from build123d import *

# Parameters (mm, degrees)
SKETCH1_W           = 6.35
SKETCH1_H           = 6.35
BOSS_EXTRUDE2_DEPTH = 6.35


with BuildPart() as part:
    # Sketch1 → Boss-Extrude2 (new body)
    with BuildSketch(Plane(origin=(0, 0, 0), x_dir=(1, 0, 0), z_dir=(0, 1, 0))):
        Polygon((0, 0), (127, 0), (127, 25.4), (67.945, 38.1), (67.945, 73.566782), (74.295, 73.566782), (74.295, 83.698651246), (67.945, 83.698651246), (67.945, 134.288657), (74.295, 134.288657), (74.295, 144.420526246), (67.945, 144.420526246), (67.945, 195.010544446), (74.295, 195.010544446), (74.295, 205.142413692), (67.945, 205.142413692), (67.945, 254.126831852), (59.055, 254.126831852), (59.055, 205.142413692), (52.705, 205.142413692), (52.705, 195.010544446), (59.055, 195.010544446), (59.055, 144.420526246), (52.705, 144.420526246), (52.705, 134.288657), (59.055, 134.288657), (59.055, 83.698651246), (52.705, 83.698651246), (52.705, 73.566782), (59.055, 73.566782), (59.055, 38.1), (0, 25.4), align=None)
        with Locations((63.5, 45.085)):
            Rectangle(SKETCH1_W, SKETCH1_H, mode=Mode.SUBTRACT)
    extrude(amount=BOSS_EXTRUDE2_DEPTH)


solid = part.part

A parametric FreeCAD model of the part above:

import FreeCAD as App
import Part
import Sketcher
Q = App.Units.Quantity

doc = App.newDocument("Part")
body = doc.addObject("PartDesign::Body", "Body")

sketch1 = body.newObject("Sketcher::SketchObject", "Sketch")
sketch1.AttachmentSupport = (doc.getObject("XZ_Plane"), [""])
sketch1.MapMode = "FlatFace"
sketch1.addGeometry([
    Part.LineSegment(App.Vector(0, 0, 0), App.Vector(127, 0, 0)),
    Part.LineSegment(App.Vector(127, 0, 0), App.Vector(127, -25.4, 0)),
    Part.LineSegment(App.Vector(127, -25.4, 0), App.Vector(67.945, -38.1, 0)),
    Part.LineSegment(App.Vector(67.945, -38.1, 0), App.Vector(67.945, -73.566782, 0)),
    Part.LineSegment(App.Vector(67.945, -73.566782, 0), App.Vector(74.295, -73.566782, 0)),
    Part.LineSegment(App.Vector(74.295, -73.566782, 0), App.Vector(74.295, -83.698651, 0)),
    Part.LineSegment(App.Vector(74.295, -83.698651, 0), App.Vector(67.945, -83.698651, 0)),
    Part.LineSegment(App.Vector(67.945, -83.698651, 0), App.Vector(67.945, -134.288657, 0)),
    Part.LineSegment(App.Vector(67.945, -134.288657, 0), App.Vector(74.295, -134.288657, 0)),
    Part.LineSegment(App.Vector(74.295, -134.288657, 0), App.Vector(74.295, -144.420526, 0)),
    Part.LineSegment(App.Vector(74.295, -144.420526, 0), App.Vector(67.945, -144.420526, 0)),
    Part.LineSegment(App.Vector(67.945, -144.420526, 0), App.Vector(67.945, -195.010544, 0)),
    Part.LineSegment(App.Vector(67.945, -195.010544, 0), App.Vector(74.295, -195.010544, 0)),
    Part.LineSegment(App.Vector(74.295, -195.010544, 0), App.Vector(74.295, -205.142414, 0)),
    Part.LineSegment(App.Vector(74.295, -205.142414, 0), App.Vector(67.945, -205.142414, 0)),
    Part.LineSegment(App.Vector(67.945, -205.142414, 0), App.Vector(67.945, -254.126832, 0)),
    Part.LineSegment(App.Vector(67.945, -254.126832, 0), App.Vector(59.055, -254.126832, 0)),
    Part.LineSegment(App.Vector(59.055, -254.126832, 0), App.Vector(59.055, -205.142414, 0)),
    Part.LineSegment(App.Vector(59.055, -205.142414, 0), App.Vector(52.705, -205.142414, 0)),
    Part.LineSegment(App.Vector(52.705, -205.142414, 0), App.Vector(52.705, -195.010544, 0)),
    Part.LineSegment(App.Vector(52.705, -195.010544, 0), App.Vector(59.055, -195.010544, 0)),
    Part.LineSegment(App.Vector(59.055, -195.010544, 0), App.Vector(59.055, -144.420526, 0)),
    Part.LineSegment(App.Vector(59.055, -144.420526, 0), App.Vector(52.705, -144.420526, 0)),
    Part.LineSegment(App.Vector(52.705, -144.420526, 0), App.Vector(52.705, -134.288657, 0)),
    Part.LineSegment(App.Vector(52.705, -134.288657, 0), App.Vector(59.055, -134.288657, 0)),
    Part.LineSegment(App.Vector(59.055, -134.288657, 0), App.Vector(59.055, -83.698651, 0)),
    Part.LineSegment(App.Vector(59.055, -83.698651, 0), App.Vector(52.705, -83.698651, 0)),
    Part.LineSegment(App.Vector(52.705, -83.698651, 0), App.Vector(52.705, -73.566782, 0)),
    Part.LineSegment(App.Vector(52.705, -73.566782, 0), App.Vector(59.055, -73.566782, 0)),
    Part.LineSegment(App.Vector(59.055, -73.566782, 0), App.Vector(59.055, -38.1, 0)),
    Part.LineSegment(App.Vector(59.055, -38.1, 0), App.Vector(0, -25.4, 0)),
    Part.LineSegment(App.Vector(0, -25.4, 0), App.Vector(0, 0, 0)),
    Part.LineSegment(App.Vector(66.675, -41.91, 0), App.Vector(60.325, -41.91, 0)),
    Part.LineSegment(App.Vector(60.325, -41.91, 0), App.Vector(60.325, -48.26, 0)),
    Part.LineSegment(App.Vector(60.325, -48.26, 0), App.Vector(66.675, -48.26, 0)),
    Part.LineSegment(App.Vector(66.675, -48.26, 0), App.Vector(66.675, -41.91, 0)),
], False)
sketch1.addConstraint([
    Sketcher.Constraint("Coincident", 0, 2, 1, 1),
    Sketcher.Constraint("Coincident", 1, 2, 2, 1),
    Sketcher.Constraint("Coincident", 2, 2, 3, 1),
    Sketcher.Constraint("Coincident", 3, 2, 4, 1),
    Sketcher.Constraint("Coincident", 4, 2, 5, 1),
    Sketcher.Constraint("Coincident", 5, 2, 6, 1),
    Sketcher.Constraint("Coincident", 6, 2, 7, 1),
    Sketcher.Constraint("Coincident", 7, 2, 8, 1),
    Sketcher.Constraint("Coincident", 8, 2, 9, 1),
    Sketcher.Constraint("Coincident", 9, 2, 10, 1),
    Sketcher.Constraint("Coincident", 10, 2, 11, 1),
    Sketcher.Constraint("Coincident", 11, 2, 12, 1),
    Sketcher.Constraint("Coincident", 12, 2, 13, 1),
    Sketcher.Constraint("Coincident", 13, 2, 14, 1),
    Sketcher.Constraint("Coincident", 14, 2, 15, 1),
    Sketcher.Constraint("Coincident", 15, 2, 16, 1),
    Sketcher.Constraint("Coincident", 16, 2, 17, 1),
    Sketcher.Constraint("Coincident", 17, 2, 18, 1),
    Sketcher.Constraint("Coincident", 18, 2, 19, 1),
    Sketcher.Constraint("Coincident", 19, 2, 20, 1),
    Sketcher.Constraint("Coincident", 20, 2, 21, 1),
    Sketcher.Constraint("Coincident", 21, 2, 22, 1),
    Sketcher.Constraint("Coincident", 22, 2, 23, 1),
    Sketcher.Constraint("Coincident", 23, 2, 24, 1),
    Sketcher.Constraint("Coincident", 24, 2, 25, 1),
    Sketcher.Constraint("Coincident", 25, 2, 26, 1),
    Sketcher.Constraint("Coincident", 26, 2, 27, 1),
    Sketcher.Constraint("Coincident", 27, 2, 28, 1),
    Sketcher.Constraint("Coincident", 28, 2, 29, 1),
    Sketcher.Constraint("Coincident", 29, 2, 30, 1),
    Sketcher.Constraint("Coincident", 30, 2, 31, 1),
    Sketcher.Constraint("Coincident", 31, 2, 0, 1),
    Sketcher.Constraint("Coincident", 32, 2, 33, 1),
    Sketcher.Constraint("Coincident", 33, 2, 34, 1),
    Sketcher.Constraint("Coincident", 34, 2, 35, 1),
    Sketcher.Constraint("Coincident", 35, 2, 32, 1),
    Sketcher.Constraint("Horizontal", 0),
    Sketcher.Constraint("Vertical", 1),
    Sketcher.Constraint("Vertical", 3),
    Sketcher.Constraint("Horizontal", 4),
    Sketcher.Constraint("Vertical", 5),
    Sketcher.Constraint("Horizontal", 6),
    Sketcher.Constraint("Vertical", 7),
    Sketcher.Constraint("Horizontal", 8),
    Sketcher.Constraint("Vertical", 9),
    Sketcher.Constraint("Horizontal", 10),
    Sketcher.Constraint("Vertical", 11),
    Sketcher.Constraint("Horizontal", 12),
    Sketcher.Constraint("Vertical", 13),
    Sketcher.Constraint("Horizontal", 14),
    Sketcher.Constraint("Vertical", 15),
    Sketcher.Constraint("Horizontal", 16),
    Sketcher.Constraint("Vertical", 17),
    Sketcher.Constraint("Horizontal", 18),
    Sketcher.Constraint("Vertical", 19),
    Sketcher.Constraint("Horizontal", 20),
    Sketcher.Constraint("Vertical", 21),
    Sketcher.Constraint("Horizontal", 22),
    Sketcher.Constraint("Vertical", 23),
    Sketcher.Constraint("Horizontal", 24),
    Sketcher.Constraint("Vertical", 25),
    Sketcher.Constraint("Horizontal", 26),
    Sketcher.Constraint("Vertical", 27),
    Sketcher.Constraint("Horizontal", 28),
    Sketcher.Constraint("Vertical", 29),
    Sketcher.Constraint("Vertical", 31),
    Sketcher.Constraint("Horizontal", 32),
    Sketcher.Constraint("Vertical", 33),
    Sketcher.Constraint("Horizontal", 34),
    Sketcher.Constraint("Vertical", 35),
    Sketcher.Constraint("Coincident", 31, 2, -1, 1),
    Sketcher.Constraint("Horizontal", 14, 2, 17, 2),
    Sketcher.Constraint("Horizontal", 12, 2, 19, 2),
    Sketcher.Constraint("Horizontal", 10, 2, 21, 2),
    Sketcher.Constraint("Horizontal", 8, 2, 23, 2),
    Sketcher.Constraint("Horizontal", 6, 2, 25, 2),
    Sketcher.Constraint("Horizontal", 4, 2, 27, 2),
    Sketcher.Constraint("Horizontal", 2, 2, 29, 2),
    Sketcher.Constraint("Horizontal", 1, 2, 30, 2),
    Sketcher.Constraint("Vertical", 3, 2, 6, 2),
    Sketcher.Constraint("Vertical", 5, 2, 8, 2),
    Sketcher.Constraint("Vertical", 7, 2, 10, 2),
    Sketcher.Constraint("Vertical", 9, 2, 12, 2),
    Sketcher.Constraint("Vertical", 11, 2, 14, 2),
    Sketcher.Constraint("Vertical", 17, 2, 20, 2),
    Sketcher.Constraint("Vertical", 19, 2, 22, 2),
    Sketcher.Constraint("Vertical", 21, 2, 24, 2),
    Sketcher.Constraint("Vertical", 23, 2, 26, 2),
    Sketcher.Constraint("Vertical", 25, 2, 28, 2),
    Sketcher.Constraint("Equal", 14, 18),
    Sketcher.Constraint("Equal", 28, 32),
    Sketcher.Constraint("Equal", 5, 9),
    Sketcher.Constraint("Equal", 9, 13),
    Sketcher.Constraint("Equal", 34, 33),
    Sketcher.Constraint("Equal", 2, 30),
    Sketcher.Constraint("DistanceX", 0, 1, 0, 2, Q("5 in")),
    Sketcher.Constraint("DistanceY", 1, 2, 1, 1, Q("1 in")),
    Sketcher.Constraint("DistanceX", 4, 1, 4, 2, Q("0.25 in")),
    Sketcher.Constraint("DistanceX", 16, 2, 16, 1, Q("0.35 in")),
    Sketcher.Constraint("DistanceY", 2, 2, -1, 1, Q("1.5 in")),
    Sketcher.Constraint("DistanceY", 33, 2, -1, 1, Q("1.9 in")),
    Sketcher.Constraint("DistanceX", 32, 2, 2, 2, Q("0.3 in")),
    Sketcher.Constraint("DistanceY", 7, 2, 3, 2, Q("2.390625 in")),
    Sketcher.Constraint("DistanceY", 5, 2, 5, 1, Q("10.131869 mm")),
    Sketcher.Constraint("DistanceY", 11, 2, 11, 1, Q("50.590018 mm")),
    Sketcher.Constraint("DistanceY", 15, 2, 15, 1, Q("48.984418 mm")),
    Sketcher.Constraint("DistanceY", 3, 2, 3, 1, Q("35.466782 mm")),
])
pad1 = body.newObject("PartDesign::Pad", "Pad")
pad1.Profile = sketch1
pad1.Length = Q("0.25 in")
pad1.Reversed = True

doc.recompute()
